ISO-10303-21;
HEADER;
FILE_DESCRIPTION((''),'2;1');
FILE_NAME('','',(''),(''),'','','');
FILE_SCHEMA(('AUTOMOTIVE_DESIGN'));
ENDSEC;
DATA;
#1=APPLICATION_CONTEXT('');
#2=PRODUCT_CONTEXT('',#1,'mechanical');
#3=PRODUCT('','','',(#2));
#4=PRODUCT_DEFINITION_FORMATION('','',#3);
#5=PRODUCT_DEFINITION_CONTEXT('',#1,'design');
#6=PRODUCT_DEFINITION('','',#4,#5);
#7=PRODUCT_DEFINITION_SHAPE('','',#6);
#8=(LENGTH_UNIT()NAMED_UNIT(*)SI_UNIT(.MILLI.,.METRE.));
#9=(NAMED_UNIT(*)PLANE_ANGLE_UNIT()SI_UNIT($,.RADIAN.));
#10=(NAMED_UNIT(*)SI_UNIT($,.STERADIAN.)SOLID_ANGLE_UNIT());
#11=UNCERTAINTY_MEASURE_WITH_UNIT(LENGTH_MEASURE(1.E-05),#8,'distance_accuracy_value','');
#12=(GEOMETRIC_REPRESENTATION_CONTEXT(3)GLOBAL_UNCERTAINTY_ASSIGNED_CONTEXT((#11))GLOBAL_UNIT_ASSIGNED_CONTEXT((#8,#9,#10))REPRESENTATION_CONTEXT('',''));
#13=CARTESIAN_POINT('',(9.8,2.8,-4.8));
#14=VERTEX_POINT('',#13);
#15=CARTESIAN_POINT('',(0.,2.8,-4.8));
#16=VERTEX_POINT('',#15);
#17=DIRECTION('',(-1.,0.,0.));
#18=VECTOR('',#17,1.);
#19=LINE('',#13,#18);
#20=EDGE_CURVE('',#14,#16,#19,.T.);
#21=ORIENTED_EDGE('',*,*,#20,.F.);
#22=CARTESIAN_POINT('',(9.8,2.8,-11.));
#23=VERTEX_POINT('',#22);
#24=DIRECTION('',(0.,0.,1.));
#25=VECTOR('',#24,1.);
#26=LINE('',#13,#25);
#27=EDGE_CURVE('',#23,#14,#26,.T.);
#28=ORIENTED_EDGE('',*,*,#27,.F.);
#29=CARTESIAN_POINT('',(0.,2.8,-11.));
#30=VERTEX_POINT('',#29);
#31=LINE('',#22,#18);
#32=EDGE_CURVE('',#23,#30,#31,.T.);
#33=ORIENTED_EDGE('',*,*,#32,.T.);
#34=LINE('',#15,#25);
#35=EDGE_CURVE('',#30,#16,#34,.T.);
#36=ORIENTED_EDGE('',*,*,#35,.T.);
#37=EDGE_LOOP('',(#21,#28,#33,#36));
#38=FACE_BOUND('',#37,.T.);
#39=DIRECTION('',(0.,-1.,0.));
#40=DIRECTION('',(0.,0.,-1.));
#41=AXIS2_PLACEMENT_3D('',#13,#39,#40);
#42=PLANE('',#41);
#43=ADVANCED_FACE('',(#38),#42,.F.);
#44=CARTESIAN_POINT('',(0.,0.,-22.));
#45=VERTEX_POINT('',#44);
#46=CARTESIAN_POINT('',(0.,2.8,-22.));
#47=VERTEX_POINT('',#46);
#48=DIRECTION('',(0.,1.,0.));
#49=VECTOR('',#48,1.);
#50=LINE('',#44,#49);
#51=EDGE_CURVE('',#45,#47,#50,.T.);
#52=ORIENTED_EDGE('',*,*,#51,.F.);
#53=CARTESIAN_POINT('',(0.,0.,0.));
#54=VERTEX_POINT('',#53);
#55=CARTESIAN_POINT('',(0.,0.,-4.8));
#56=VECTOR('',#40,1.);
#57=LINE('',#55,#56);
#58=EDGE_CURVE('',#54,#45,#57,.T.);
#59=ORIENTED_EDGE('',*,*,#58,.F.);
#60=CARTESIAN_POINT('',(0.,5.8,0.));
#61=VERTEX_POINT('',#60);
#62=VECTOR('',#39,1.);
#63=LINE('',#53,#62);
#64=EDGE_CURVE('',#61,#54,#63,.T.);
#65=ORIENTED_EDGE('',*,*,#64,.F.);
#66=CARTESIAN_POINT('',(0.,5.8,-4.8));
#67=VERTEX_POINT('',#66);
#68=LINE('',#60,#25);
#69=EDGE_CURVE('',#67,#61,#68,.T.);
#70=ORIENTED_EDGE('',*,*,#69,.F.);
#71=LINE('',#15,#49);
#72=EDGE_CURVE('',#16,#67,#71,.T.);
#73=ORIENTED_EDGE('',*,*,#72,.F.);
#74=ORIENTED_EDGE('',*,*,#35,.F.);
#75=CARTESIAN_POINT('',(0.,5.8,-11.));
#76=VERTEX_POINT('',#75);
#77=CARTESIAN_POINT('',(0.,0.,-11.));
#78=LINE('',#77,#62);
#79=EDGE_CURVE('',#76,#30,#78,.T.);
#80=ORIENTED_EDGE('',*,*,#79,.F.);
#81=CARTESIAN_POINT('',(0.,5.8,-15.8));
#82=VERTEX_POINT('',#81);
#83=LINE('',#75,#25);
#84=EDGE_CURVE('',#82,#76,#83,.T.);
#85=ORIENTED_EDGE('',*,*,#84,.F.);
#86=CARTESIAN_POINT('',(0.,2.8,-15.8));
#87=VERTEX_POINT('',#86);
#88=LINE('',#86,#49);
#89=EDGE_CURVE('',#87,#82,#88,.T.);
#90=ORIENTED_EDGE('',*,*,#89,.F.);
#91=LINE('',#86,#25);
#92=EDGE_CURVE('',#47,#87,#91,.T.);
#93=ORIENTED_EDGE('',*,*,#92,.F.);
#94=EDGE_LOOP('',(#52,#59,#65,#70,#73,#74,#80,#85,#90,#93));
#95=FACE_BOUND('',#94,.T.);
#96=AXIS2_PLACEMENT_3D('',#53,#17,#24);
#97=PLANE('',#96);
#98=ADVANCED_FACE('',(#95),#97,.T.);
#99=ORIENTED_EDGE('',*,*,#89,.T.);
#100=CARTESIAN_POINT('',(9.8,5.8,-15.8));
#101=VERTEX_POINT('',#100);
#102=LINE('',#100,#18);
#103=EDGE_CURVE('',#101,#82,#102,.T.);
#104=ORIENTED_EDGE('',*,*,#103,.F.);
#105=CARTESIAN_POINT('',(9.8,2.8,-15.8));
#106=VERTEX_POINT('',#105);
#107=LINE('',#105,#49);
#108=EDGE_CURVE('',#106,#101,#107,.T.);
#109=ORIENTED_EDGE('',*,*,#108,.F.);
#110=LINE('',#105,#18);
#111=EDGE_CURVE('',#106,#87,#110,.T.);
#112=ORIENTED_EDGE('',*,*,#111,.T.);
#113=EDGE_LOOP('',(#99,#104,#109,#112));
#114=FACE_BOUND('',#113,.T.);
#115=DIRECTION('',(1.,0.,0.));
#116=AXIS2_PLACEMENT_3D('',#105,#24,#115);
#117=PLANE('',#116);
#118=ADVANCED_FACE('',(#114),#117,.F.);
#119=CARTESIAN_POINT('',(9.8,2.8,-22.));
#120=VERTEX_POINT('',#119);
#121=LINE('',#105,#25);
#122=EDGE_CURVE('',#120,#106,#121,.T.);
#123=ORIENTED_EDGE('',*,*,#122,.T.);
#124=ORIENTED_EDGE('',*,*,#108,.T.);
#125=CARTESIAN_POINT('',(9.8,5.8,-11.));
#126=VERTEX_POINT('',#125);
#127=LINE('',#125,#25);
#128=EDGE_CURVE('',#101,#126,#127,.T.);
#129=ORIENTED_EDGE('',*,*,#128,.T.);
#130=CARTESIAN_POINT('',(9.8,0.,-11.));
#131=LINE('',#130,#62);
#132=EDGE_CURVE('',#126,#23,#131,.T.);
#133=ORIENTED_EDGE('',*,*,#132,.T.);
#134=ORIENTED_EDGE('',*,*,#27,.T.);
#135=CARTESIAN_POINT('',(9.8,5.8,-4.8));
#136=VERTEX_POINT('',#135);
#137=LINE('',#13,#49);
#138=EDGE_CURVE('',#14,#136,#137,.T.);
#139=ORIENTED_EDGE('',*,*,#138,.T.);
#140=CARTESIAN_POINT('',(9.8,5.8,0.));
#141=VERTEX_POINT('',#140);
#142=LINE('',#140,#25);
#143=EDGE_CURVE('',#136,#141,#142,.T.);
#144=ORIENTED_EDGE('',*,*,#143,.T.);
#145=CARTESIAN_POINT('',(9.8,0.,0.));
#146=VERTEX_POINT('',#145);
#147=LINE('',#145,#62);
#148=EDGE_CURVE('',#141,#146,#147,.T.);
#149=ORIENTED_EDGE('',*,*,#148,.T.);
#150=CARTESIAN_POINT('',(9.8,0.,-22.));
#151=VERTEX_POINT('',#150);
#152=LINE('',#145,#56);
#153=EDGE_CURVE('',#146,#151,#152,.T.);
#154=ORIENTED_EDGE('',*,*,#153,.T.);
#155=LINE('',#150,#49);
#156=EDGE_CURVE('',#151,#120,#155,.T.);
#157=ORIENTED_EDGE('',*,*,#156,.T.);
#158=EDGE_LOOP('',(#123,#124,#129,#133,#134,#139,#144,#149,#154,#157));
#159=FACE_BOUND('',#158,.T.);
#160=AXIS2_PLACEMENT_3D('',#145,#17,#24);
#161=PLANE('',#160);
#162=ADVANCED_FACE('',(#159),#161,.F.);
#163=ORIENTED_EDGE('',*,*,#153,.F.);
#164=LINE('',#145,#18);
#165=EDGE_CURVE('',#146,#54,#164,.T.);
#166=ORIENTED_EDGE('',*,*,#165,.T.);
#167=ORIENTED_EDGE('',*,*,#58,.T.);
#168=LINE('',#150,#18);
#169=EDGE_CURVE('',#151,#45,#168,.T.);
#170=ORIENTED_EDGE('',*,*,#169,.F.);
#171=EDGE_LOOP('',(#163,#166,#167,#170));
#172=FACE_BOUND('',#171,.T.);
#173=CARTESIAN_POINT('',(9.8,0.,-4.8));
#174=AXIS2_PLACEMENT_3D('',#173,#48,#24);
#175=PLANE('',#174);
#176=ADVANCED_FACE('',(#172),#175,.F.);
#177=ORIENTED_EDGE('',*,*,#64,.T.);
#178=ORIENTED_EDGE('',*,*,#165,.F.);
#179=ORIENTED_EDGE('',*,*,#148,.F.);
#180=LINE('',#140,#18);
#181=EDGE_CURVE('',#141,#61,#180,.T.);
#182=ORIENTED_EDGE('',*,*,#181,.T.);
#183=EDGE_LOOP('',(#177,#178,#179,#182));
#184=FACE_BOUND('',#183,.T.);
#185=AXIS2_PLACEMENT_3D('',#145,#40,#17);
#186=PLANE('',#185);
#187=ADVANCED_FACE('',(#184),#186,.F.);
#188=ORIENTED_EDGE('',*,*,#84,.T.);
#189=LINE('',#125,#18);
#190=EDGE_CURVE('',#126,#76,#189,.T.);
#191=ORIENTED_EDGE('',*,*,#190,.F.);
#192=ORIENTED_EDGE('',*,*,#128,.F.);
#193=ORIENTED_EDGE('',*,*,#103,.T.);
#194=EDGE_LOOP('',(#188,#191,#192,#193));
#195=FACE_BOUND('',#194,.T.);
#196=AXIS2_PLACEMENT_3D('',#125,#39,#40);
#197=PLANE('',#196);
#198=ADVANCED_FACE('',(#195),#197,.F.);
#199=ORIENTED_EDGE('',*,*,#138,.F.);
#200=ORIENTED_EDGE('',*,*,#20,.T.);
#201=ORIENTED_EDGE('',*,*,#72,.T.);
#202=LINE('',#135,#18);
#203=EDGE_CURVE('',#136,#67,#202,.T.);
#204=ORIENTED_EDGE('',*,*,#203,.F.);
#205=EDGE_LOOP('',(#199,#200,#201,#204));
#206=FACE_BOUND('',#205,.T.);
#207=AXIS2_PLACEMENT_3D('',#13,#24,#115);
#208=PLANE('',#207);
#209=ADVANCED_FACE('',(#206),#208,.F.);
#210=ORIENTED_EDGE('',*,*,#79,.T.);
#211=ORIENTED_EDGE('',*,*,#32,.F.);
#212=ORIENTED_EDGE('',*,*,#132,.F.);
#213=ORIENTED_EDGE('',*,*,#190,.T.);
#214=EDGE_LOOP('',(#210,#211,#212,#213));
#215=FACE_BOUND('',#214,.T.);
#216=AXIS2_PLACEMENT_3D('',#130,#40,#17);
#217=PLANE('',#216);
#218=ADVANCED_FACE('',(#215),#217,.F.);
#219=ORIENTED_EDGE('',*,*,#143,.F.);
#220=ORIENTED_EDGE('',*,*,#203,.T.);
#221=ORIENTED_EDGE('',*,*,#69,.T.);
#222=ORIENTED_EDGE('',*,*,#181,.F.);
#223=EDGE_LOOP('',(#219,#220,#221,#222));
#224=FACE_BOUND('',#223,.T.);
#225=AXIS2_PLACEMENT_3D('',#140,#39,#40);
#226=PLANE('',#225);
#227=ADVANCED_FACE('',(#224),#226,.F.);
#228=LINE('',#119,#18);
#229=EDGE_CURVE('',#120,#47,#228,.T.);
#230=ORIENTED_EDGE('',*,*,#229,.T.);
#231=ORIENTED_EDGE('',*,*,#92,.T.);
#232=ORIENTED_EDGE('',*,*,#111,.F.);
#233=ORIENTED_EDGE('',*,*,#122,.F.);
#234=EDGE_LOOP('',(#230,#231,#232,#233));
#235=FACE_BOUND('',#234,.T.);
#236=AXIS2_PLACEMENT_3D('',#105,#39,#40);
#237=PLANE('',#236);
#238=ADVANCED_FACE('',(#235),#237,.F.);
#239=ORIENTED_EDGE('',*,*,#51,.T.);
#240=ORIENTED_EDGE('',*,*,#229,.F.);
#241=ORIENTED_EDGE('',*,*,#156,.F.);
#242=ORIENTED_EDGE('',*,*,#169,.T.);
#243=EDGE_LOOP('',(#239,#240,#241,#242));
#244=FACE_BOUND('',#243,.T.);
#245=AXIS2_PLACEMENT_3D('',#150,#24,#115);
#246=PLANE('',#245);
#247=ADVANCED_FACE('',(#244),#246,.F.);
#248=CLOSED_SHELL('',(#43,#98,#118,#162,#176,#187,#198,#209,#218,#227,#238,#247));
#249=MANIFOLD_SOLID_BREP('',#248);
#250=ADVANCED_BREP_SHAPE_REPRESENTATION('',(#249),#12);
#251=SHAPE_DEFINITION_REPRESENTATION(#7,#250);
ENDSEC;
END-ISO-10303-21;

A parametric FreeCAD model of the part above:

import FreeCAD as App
import Part
import Sketcher

V = App.Vector


def add_polygon(sketch, points):
    """Adds a closed chain of lines whose ends are joined by coincident constraints."""
    first, n = sketch.GeometryCount, len(points)
    for a, b in zip(points, points[1:] + points[:1]):
        sketch.addGeometry(Part.LineSegment(App.Vector(*a, 0), App.Vector(*b, 0)), False)
    for i in range(n):
        sketch.addConstraint(Sketcher.Constraint("Coincident", first + i, 2, first + (i + 1) % n, 1))

doc = App.newDocument("Part")
body = doc.addObject("PartDesign::Body", "Body")

# Sketch on YZ plane
sketch1 = body.newObject("Sketcher::SketchObject", "Sketch")
sketch1.AttachmentSupport = (doc.getObject("YZ_Plane"), [""])
sketch1.MapMode = "FlatFace"
add_polygon(sketch1, [(0, 0), (0, -11), (2.8, -11), (2.8, -4.8), (5.8, -4.8), (5.8, 0)])  # lines 0-5
sketch1.addConstraint([
    Sketcher.Constraint("Vertical", 0),
    Sketcher.Constraint("Horizontal", 1),
    Sketcher.Constraint("Vertical", 2),
    Sketcher.Constraint("Horizontal", 3),
    Sketcher.Constraint("Vertical", 4),
    Sketcher.Constraint("Horizontal", 5),
    Sketcher.Constraint("Coincident", 5, 2, -1, 1),
    Sketcher.Constraint("DistanceX", 3, 1, 3, 2, 3.0),
    Sketcher.Constraint("DistanceY", 0, 2, 0, 1, 11.0),
    Sketcher.Constraint("DistanceX", 1, 1, 1, 2, 2.8),
    Sketcher.Constraint("DistanceY", 2, 1, 2, 2, 6.2),
])
pad1 = body.newObject("PartDesign::Pad", "Pad")
pad1.Profile = sketch1
pad1.Length = 9.8
doc.recompute()

linearpattern = body.newObject("PartDesign::LinearPattern", "LinearPattern")
linearpattern.Originals = [pad1]
linearpattern.Direction = (doc.getObject("Z_Axis"), [""])
linearpattern.Mode = "offset"
linearpattern.Offset = 11
linearpattern.Occurrences = 2
linearpattern.Reversed = True
body.Tip = linearpattern

doc.recompute()
